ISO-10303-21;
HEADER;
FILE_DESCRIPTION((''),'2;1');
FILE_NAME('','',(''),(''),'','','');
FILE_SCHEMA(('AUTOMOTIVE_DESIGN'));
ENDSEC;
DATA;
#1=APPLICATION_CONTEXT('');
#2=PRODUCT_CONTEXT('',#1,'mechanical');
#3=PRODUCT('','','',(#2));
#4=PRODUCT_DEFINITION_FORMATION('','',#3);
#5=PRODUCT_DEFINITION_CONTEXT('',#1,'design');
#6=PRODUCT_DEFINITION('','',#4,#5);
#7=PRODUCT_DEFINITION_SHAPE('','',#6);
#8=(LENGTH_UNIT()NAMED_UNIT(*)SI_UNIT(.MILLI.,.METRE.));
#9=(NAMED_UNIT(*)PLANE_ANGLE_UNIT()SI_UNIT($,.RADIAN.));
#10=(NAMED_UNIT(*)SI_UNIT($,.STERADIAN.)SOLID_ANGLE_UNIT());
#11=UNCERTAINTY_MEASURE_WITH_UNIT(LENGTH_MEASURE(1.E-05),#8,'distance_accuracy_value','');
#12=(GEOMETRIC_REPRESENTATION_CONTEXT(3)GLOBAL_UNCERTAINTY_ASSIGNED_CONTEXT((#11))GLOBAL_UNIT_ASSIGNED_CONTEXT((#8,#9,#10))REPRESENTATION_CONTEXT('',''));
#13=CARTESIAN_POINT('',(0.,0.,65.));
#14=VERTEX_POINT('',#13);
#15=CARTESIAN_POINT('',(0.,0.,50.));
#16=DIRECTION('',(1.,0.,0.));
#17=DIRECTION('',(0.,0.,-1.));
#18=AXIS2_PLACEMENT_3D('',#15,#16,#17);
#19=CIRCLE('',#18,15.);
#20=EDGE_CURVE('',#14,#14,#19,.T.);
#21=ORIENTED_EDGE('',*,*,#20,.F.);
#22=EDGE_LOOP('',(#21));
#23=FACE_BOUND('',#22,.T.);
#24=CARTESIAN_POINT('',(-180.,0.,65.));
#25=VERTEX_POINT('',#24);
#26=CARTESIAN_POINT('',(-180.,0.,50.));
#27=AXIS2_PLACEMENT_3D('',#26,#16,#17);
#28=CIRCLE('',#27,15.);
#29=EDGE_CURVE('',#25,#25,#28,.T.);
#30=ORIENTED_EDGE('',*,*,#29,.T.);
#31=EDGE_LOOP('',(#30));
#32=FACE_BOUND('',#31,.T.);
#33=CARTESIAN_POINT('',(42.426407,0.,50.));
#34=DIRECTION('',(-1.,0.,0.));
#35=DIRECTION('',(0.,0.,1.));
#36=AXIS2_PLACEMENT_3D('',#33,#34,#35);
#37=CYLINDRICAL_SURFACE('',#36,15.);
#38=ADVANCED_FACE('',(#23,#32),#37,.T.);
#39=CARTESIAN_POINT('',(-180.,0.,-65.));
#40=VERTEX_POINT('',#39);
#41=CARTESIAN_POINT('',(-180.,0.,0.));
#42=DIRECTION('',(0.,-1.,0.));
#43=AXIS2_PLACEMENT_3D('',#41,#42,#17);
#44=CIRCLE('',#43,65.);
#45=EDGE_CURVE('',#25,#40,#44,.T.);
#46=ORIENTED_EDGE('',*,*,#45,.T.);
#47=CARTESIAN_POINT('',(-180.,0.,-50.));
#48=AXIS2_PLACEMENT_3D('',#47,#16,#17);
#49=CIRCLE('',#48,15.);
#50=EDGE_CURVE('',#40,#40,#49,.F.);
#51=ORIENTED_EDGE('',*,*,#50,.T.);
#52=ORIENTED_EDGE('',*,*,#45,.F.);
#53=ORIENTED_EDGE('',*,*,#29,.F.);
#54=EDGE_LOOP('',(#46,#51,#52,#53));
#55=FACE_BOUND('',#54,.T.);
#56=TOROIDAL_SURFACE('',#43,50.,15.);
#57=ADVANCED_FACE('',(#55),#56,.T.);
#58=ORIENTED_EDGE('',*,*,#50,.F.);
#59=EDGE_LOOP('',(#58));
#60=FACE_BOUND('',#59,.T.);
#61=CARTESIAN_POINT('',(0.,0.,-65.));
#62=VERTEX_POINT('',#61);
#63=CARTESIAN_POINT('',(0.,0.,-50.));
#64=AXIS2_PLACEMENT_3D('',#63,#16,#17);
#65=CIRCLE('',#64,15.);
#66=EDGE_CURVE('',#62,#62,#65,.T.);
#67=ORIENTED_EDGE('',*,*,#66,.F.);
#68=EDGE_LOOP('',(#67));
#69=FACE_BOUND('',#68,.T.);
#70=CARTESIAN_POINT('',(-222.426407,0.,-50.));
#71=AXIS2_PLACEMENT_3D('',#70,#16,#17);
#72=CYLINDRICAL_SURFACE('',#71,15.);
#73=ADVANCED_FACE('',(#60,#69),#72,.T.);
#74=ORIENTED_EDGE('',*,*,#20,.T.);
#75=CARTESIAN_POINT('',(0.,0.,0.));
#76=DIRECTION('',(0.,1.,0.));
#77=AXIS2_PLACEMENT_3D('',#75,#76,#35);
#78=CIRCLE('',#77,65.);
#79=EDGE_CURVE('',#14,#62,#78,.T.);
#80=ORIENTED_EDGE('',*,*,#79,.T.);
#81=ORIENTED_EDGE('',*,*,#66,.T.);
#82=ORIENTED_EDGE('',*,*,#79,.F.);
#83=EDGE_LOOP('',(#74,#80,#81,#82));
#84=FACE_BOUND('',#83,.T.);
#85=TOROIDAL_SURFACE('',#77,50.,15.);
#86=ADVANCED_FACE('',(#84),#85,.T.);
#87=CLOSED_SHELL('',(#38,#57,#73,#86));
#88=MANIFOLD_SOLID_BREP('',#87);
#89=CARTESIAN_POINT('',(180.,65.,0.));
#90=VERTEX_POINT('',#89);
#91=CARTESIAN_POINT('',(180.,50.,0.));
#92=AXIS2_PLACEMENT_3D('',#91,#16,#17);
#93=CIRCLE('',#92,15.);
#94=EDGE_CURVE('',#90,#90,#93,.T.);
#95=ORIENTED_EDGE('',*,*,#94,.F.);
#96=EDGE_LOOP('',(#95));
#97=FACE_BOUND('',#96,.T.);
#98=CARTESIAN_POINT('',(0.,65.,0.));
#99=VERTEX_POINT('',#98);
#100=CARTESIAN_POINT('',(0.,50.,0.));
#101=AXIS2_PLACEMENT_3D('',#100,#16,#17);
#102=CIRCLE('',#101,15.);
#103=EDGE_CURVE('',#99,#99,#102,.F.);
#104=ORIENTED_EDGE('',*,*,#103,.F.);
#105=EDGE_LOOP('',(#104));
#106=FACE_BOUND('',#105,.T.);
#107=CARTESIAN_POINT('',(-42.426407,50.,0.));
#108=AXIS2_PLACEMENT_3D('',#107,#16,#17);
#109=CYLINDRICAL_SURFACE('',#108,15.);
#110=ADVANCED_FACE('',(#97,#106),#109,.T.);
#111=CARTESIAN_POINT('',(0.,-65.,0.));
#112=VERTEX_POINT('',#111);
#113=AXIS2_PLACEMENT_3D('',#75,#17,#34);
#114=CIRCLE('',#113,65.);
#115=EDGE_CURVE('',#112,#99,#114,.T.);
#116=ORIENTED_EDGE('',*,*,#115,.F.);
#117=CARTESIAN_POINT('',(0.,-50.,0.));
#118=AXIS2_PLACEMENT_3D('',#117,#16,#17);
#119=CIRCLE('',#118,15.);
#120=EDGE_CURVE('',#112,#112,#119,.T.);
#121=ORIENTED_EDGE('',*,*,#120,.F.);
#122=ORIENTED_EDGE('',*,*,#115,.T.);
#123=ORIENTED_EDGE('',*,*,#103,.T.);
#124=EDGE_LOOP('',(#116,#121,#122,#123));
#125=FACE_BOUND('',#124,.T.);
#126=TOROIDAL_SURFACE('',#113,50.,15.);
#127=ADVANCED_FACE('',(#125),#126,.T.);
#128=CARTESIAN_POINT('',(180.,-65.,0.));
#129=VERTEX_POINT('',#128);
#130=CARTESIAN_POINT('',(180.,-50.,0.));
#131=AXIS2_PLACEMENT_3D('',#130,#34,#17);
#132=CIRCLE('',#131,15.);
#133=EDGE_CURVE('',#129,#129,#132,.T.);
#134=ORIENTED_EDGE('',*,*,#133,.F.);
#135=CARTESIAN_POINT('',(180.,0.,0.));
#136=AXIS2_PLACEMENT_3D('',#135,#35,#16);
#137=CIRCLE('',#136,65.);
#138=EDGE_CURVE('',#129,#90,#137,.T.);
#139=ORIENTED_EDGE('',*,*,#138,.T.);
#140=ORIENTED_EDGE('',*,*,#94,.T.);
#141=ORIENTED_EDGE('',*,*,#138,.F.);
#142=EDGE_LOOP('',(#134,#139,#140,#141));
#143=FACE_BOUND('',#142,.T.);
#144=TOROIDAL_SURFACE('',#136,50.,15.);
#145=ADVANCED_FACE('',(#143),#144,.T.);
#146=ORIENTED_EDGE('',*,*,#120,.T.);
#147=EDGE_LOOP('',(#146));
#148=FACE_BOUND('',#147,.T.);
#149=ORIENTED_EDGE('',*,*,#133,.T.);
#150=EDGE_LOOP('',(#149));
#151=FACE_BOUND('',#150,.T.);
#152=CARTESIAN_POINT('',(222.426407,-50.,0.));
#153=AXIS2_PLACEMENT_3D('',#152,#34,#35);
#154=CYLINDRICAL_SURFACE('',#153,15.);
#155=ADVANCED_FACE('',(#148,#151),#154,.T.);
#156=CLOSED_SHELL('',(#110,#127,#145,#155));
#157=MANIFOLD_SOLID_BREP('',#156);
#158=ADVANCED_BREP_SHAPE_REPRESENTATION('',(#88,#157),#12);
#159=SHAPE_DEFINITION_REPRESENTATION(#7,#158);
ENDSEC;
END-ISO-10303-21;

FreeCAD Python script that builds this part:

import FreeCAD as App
import Part
import Sketcher
from FreeCAD import Vector
Q = App.Units.Quantity

doc = App.newDocument("Part")
body = doc.addObject("PartDesign::Body", "Body")

# Sketch on YZ plane
sketch1 = body.newObject("Sketcher::SketchObject", "Sketch")
sketch1.AttachmentSupport = (doc.getObject("YZ_Plane"), [""])
sketch1.MapMode = "FlatFace"
sketch1.AttachmentOffset = App.Placement(Vector(0, 0, 180), App.Rotation())
sketch1.addGeometry(Part.Circle(Vector(50, 0, 0), Vector(0, 0, 1), 15), False)
sketch1.addConstraint(Sketcher.Constraint("PointOnObject", 0, 3, -1))
sketch1.addConstraint(Sketcher.Constraint("Diameter", 0, Q("30 mm")))
sketch1.addConstraint(Sketcher.Constraint("DistanceX", -1, 1, 0, 3, Q("50 mm")))
pad1 = body.newObject("PartDesign::Pad", "Pad")
pad1.Profile = sketch1
pad1.Length = 180
pad1.Reversed = True
body2 = doc.addObject("PartDesign::Body", "Body001")

# Sketch on YZ plane
sketch2 = body2.newObject("Sketcher::SketchObject", "Sketch001")
sketch2.AttachmentSupport = (doc.getObject("YZ_Plane001"), [""])
sketch2.MapMode = "FlatFace"
sketch2.addGeometry(Part.Circle(Vector(-50, 0, 0), Vector(0, 0, 1), 15), False)
sketch2.addConstraint(Sketcher.Constraint("PointOnObject", 0, 3, -1))
sketch2.addConstraint(Sketcher.Constraint("Diameter", 0, Q("30 mm")))
sketch2.addConstraint(Sketcher.Constraint("DistanceX", 0, 3, -1, 1, Q("50 mm")))
pad2 = body2.newObject("PartDesign::Pad", "Pad001")
pad2.Profile = sketch2
pad2.Length = 180
body3 = doc.addObject("PartDesign::Body", "Body002")

# Sketch on YZ plane
sketch3 = body3.newObject("Sketcher::SketchObject", "Sketch002")
sketch3.AttachmentSupport = (doc.getObject("YZ_Plane002"), [""])
sketch3.MapMode = "FlatFace"
sketch3.addGeometry(Part.Circle(Vector(0, -50, 0), Vector(0, 0, 1), 15), False)
sketch3.addConstraint(Sketcher.Constraint("PointOnObject", 0, 3, -2))
sketch3.addConstraint(Sketcher.Constraint("Diameter", 0, Q("30 mm")))
sketch3.addConstraint(Sketcher.Constraint("DistanceY", 0, 3, -1, 1, Q("50 mm")))
pad3 = body3.newObject("PartDesign::Pad", "Pad002")
pad3.Profile = sketch3
pad3.Length = 180
pad3.Reversed = True
body4 = doc.addObject("PartDesign::Body", "Body003")

# Sketch on YZ plane
sketch4 = body4.newObject("Sketcher::SketchObject", "Sketch003")
sketch4.AttachmentSupport = (doc.getObject("YZ_Plane003"), [""])
sketch4.MapMode = "FlatFace"
sketch4.AttachmentOffset = App.Placement(Vector(0, 0, -180), App.Rotation())
sketch4.addGeometry(Part.Circle(Vector(0, 50, 0), Vector(0, 0, 1), 15), False)
sketch4.addConstraint(Sketcher.Constraint("PointOnObject", 0, 3, -2))
sketch4.addConstraint(Sketcher.Constraint("Diameter", 0, Q("30 mm")))
sketch4.addConstraint(Sketcher.Constraint("DistanceY", -1, 1, 0, 3, Q("50 mm")))
pad4 = body4.newObject("PartDesign::Pad", "Pad003")
pad4.Profile = sketch4
pad4.Length = 180
body.AllowCompound = True
doc.recompute()

boolean = body.newObject("PartDesign::Boolean", "Boolean")
boolean.Type = "Fuse"
boolean.addObjects([body2])

# Sketch on YZ plane
sketch5 = body.newObject("Sketcher::SketchObject", "Sketch004")
sketch5.AttachmentSupport = (doc.getObject("YZ_Plane"), [""])
sketch5.MapMode = "FlatFace"
sketch5.AttachmentOffset = App.Placement(Vector(0, 0, 180), App.Rotation())
sketch5.addGeometry(Part.Circle(Vector(50, 0, 0), Vector(0, 0, 1), 15), False)
sketch5.addConstraint(Sketcher.Constraint("PointOnObject", 0, 3, -1))
sketch5.addConstraint(Sketcher.Constraint("Diameter", 0, Q("30 mm")))
sketch5.addConstraint(Sketcher.Constraint("DistanceX", -1, 1, 0, 3, Q("50 mm")))
revolution = body.newObject("PartDesign::Revolution", "Revolution")
revolution.Profile = sketch5
revolution.ReferenceAxis = (sketch5, ["V_Axis"])
revolution.Angle = 180
revolution.Reversed = True

# Sketch on YZ plane
sketch6 = body.newObject("Sketcher::SketchObject", "Sketch005")
sketch6.AttachmentSupport = (doc.getObject("YZ_Plane"), [""])
sketch6.MapMode = "FlatFace"
sketch6.addGeometry(Part.Circle(Vector(50, 0, 0), Vector(0, 0, 1), 15), False)
sketch6.addConstraint(Sketcher.Constraint("PointOnObject", 0, 3, -1))
sketch6.addConstraint(Sketcher.Constraint("Diameter", 0, Q("30 mm")))
sketch6.addConstraint(Sketcher.Constraint("DistanceX", -1, 1, 0, 3, Q("50 mm")))
revolution2 = body.newObject("PartDesign::Revolution", "Revolution001")
revolution2.Profile = sketch6
revolution2.ReferenceAxis = (sketch6, ["V_Axis"])
revolution2.Angle = 180
body3.AllowCompound = True
doc.recompute()

boolean2 = body3.newObject("PartDesign::Boolean", "Boolean001")
boolean2.Type = "Fuse"
boolean2.addObjects([body4])

# Sketch on YZ plane
sketch7 = body3.newObject("Sketcher::SketchObject", "Sketch006")
sketch7.AttachmentSupport = (doc.getObject("YZ_Plane002"), [""])
sketch7.MapMode = "FlatFace"
sketch7.AttachmentOffset = App.Placement(Vector(0, 0, -180), App.Rotation())
sketch7.addGeometry(Part.Circle(Vector(0, -50, 0), Vector(0, 0, 1), 15), False)
sketch7.addConstraint(Sketcher.Constraint("PointOnObject", 0, 3, -2))
sketch7.addConstraint(Sketcher.Constraint("Diameter", 0, Q("30 mm")))
sketch7.addConstraint(Sketcher.Constraint("DistanceY", 0, 3, -1, 1, Q("50 mm")))
revolution3 = body3.newObject("PartDesign::Revolution", "Revolution002")
revolution3.Profile = sketch7
revolution3.ReferenceAxis = (sketch7, ["H_Axis"])
revolution3.Angle = 180

# Sketch on YZ plane
sketch8 = body3.newObject("Sketcher::SketchObject", "Sketch007")
sketch8.AttachmentSupport = (doc.getObject("YZ_Plane002"), [""])
sketch8.MapMode = "FlatFace"
sketch8.addGeometry(Part.Circle(Vector(0, -50, 0), Vector(0, 0, 1), 15), False)
sketch8.addConstraint(Sketcher.Constraint("PointOnObject", 0, 3, -2))
sketch8.addConstraint(Sketcher.Constraint("Diameter", 0, Q("30 mm")))
sketch8.addConstraint(Sketcher.Constraint("DistanceY", 0, 3, -1, 1, Q("50 mm")))
revolution4 = body3.newObject("PartDesign::Revolution", "Revolution003")
revolution4.Profile = sketch8
revolution4.ReferenceAxis = (sketch8, ["H_Axis"])
revolution4.Angle = 180
revolution4.Reversed = True

doc.recompute()
